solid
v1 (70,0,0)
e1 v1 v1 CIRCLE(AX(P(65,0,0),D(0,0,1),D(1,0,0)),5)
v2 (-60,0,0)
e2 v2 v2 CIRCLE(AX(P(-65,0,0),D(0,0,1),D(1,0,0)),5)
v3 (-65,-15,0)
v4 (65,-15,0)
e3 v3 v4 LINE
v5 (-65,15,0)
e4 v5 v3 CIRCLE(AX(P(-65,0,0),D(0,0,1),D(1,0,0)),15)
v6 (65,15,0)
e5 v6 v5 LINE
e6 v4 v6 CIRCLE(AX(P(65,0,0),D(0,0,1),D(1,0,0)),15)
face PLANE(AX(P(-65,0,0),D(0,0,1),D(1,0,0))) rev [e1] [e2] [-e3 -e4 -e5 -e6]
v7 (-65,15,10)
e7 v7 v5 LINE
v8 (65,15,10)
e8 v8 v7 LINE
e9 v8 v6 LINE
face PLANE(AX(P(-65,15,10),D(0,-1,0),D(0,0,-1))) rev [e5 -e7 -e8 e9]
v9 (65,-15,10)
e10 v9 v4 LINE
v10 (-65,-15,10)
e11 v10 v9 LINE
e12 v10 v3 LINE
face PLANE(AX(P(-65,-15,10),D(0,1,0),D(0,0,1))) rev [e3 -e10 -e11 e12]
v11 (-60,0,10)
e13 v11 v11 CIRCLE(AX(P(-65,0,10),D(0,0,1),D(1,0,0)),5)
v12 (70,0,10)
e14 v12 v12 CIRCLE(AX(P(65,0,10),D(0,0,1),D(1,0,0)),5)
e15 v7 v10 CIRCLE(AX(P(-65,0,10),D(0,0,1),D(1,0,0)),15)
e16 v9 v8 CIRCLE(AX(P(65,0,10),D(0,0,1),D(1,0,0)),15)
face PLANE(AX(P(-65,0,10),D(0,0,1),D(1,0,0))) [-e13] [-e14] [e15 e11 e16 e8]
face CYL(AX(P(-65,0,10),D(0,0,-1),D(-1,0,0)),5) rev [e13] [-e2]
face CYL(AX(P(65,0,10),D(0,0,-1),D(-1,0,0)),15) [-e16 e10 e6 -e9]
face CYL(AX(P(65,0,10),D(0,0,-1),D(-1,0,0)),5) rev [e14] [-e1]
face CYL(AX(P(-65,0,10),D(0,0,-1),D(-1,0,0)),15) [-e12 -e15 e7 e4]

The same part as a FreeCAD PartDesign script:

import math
import FreeCAD as App
import Part
import Sketcher
Q = App.Units.Quantity

doc = App.newDocument("Part")
body = doc.addObject("PartDesign::Body", "Body")

# Sketch on XY plane
sketch1 = doc.addObject("Sketcher::SketchObject", "Sketch")
body.addObject(sketch1)
sketch1.AttachmentSupport = (doc.XY_Plane, [""])
sketch1.MapMode = "FlatFace"
sketch1.addGeometry(Part.LineSegment(App.Vector(65, 15, 0), App.Vector(-65, 15, 0)), False)
sketch1.addGeometry(Part.ArcOfCircle(Part.Circle(App.Vector(-65, 0, 0), App.Vector(0, 0, 1), 15), math.radians(90), math.radians(270)), False)
sketch1.addGeometry(Part.LineSegment(App.Vector(-65, -15, 0), App.Vector(65, -15, 0)), False)
sketch1.addGeometry(Part.ArcOfCircle(Part.Circle(App.Vector(65, 0, 0), App.Vector(0, 0, 1), 15), math.radians(-90), math.radians(90)), False)
sketch1.addGeometry(Part.Circle(App.Vector(65, 0, 0), App.Vector(0, 0, 1), 5), False)
sketch1.addGeometry(Part.Circle(App.Vector(-65, 0, 0), App.Vector(0, 0, 1), 5), False)
sketch1.addConstraint(Sketcher.Constraint("Tangent", 0, 2, 1, 1))
sketch1.addConstraint(Sketcher.Constraint("Tangent", 1, 2, 2, 1))
sketch1.addConstraint(Sketcher.Constraint("Tangent", 2, 2, 3, 1))
sketch1.addConstraint(Sketcher.Constraint("Tangent", 3, 2, 0, 1))
sketch1.addConstraint(Sketcher.Constraint("Horizontal", 0))
sketch1.addConstraint(Sketcher.Constraint("Horizontal", 2))
sketch1.addConstraint(Sketcher.Constraint("Coincident", 4, 3, 3, 3))
sketch1.addConstraint(Sketcher.Constraint("Coincident", 5, 3, 1, 3))
sketch1.addConstraint(Sketcher.Constraint("Equal", 4, 5))
sketch1.addConstraint(Sketcher.Constraint("Symmetric", 1, 3, 3, 3, -1, 1))
sketch1.addConstraint(Sketcher.Constraint("Diameter", 4, Q("10 mm")))
sketch1.addConstraint(Sketcher.Constraint("Radius", 1, Q("15 mm")))
sketch1.addConstraint(Sketcher.Constraint("DistanceX", 0, 2, 0, 1, Q("130 mm")))
pad1 = doc.addObject("PartDesign::Pad", "Pad")
body.addObject(pad1)
pad1.Profile = sketch1
pad1.Length = 10

doc.recompute()
